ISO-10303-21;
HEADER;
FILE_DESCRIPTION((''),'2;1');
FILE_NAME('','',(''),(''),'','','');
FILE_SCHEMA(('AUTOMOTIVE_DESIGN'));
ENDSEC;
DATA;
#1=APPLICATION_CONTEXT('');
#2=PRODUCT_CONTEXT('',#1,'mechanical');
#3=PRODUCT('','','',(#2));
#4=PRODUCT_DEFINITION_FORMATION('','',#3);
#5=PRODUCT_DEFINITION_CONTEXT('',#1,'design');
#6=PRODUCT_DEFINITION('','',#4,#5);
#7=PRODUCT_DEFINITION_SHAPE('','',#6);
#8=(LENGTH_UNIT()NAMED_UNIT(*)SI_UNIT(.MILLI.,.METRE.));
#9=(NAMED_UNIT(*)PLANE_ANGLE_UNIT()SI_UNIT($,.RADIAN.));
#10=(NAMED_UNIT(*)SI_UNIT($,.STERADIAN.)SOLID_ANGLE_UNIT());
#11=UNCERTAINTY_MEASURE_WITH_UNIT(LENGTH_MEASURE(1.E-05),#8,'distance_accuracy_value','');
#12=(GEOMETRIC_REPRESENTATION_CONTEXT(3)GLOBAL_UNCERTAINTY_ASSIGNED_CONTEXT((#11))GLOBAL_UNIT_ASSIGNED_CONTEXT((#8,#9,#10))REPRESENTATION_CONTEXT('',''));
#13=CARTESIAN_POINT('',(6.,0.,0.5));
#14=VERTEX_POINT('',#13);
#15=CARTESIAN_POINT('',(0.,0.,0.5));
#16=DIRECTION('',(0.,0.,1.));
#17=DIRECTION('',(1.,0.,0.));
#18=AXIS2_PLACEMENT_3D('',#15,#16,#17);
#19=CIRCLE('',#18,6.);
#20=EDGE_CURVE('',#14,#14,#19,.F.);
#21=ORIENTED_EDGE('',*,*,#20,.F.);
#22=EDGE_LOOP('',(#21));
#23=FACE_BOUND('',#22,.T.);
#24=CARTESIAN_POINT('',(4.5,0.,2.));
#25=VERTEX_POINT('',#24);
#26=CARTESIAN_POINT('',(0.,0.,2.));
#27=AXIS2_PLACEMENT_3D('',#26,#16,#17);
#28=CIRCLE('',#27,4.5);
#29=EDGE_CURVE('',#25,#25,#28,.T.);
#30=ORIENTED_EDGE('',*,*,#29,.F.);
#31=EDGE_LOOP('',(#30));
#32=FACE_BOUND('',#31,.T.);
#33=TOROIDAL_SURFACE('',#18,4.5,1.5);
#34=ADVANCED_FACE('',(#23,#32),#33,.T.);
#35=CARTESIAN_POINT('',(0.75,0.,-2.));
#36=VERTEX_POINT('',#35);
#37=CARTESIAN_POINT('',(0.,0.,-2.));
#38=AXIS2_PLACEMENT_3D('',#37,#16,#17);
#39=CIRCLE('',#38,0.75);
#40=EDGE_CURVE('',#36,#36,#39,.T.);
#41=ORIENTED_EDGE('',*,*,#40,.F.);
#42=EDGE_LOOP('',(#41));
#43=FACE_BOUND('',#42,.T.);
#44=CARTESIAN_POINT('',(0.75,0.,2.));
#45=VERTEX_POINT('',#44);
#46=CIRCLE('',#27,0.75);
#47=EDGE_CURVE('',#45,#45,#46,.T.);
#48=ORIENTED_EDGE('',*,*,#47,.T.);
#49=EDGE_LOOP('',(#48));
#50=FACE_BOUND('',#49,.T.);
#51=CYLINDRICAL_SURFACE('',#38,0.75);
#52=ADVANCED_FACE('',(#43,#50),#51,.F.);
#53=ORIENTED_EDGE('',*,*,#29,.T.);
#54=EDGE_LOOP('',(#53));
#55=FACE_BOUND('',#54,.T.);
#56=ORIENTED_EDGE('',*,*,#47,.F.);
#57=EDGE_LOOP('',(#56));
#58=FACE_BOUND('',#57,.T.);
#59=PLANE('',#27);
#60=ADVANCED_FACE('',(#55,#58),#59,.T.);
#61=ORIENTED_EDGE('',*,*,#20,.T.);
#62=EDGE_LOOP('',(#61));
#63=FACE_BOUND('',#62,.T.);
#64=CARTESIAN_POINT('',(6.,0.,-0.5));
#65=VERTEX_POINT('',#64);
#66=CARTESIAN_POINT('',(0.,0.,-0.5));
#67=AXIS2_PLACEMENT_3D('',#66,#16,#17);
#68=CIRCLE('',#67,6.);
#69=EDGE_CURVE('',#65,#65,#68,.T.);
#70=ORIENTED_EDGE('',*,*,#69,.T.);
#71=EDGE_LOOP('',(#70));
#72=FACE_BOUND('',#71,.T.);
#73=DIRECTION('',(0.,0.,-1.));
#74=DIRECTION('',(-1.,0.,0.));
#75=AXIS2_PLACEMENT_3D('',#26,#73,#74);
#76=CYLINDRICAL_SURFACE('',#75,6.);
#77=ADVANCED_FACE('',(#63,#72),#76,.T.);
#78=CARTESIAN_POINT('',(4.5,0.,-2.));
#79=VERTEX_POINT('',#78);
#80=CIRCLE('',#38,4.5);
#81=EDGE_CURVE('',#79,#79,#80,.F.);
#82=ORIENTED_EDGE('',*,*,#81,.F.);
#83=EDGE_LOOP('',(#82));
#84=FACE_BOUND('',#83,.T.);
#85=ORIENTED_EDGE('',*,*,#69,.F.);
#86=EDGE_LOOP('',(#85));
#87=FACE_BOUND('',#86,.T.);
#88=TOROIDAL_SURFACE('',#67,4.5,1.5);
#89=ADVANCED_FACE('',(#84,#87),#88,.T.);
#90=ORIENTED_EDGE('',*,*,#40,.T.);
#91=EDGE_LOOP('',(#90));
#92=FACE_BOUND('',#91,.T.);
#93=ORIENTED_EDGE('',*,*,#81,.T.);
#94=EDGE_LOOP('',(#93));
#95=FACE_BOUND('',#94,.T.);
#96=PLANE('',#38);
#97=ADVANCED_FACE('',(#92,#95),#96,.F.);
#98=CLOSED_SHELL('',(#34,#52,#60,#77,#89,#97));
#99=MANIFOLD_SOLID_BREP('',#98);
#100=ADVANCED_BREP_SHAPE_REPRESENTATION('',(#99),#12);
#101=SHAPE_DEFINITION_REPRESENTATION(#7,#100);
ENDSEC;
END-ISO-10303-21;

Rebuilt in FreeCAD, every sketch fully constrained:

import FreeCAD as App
import Part
import Sketcher

V = App.Vector
Q = App.Units.Quantity


def edges_at(feature, points):
    """Names of the edges that pass closest to the given points."""
    edges = feature.Shape.Edges
    near = lambda p: min(range(len(edges)), key=lambda i: edges[i].distToShape(Part.Vertex(*p))[0])
    return sorted({f"Edge{near(p) + 1}" for p in points})

doc = App.newDocument("Part")
body = doc.addObject("PartDesign::Body", "Body")

sketch1 = body.newObject("Sketcher::SketchObject", "Sketch")
sketch1.AttachmentSupport = (doc.getObject("XY_Plane"), [""])
sketch1.MapMode = "FlatFace"
sketch1.addGeometry(Part.Circle(V(0, 0, 0), V(0, 0, 1), 6), False)
sketch1.addConstraint([
    Sketcher.Constraint("Coincident", 0, 3, -1, 1),
    Sketcher.Constraint("Diameter", 0, Q("12 mm")),
])
pad1 = body.newObject("PartDesign::Pad", "Pad")
pad1.Profile = sketch1
pad1.Length = 4
pad1.Midplane = True

sketch2 = body.newObject("Sketcher::SketchObject", "Sketch001")
sketch2.AttachmentSupport = (doc.getObject("XY_Plane"), [""])
sketch2.MapMode = "FlatFace"
sketch2.addGeometry(Part.Circle(V(0, 0, 0), V(0, 0, 1), 0.8), False)
sketch2.addConstraint([
    Sketcher.Constraint("Coincident", 0, 3, -1, 1),
    Sketcher.Constraint("Diameter", 0, Q("1.5 mm")),
])
pocket1 = body.newObject("PartDesign::Pocket", "Pocket")
pocket1.Profile = sketch2
pocket1.Length = 4
pocket1.Midplane = True
doc.recompute()

fillet = body.newObject("PartDesign::Fillet", "Fillet")
fillet.Base = (pocket1, edges_at(pocket1, [(-6, 0, -2), (-6, 0, 2)]))
fillet.Radius = 1.5

doc.recompute()
